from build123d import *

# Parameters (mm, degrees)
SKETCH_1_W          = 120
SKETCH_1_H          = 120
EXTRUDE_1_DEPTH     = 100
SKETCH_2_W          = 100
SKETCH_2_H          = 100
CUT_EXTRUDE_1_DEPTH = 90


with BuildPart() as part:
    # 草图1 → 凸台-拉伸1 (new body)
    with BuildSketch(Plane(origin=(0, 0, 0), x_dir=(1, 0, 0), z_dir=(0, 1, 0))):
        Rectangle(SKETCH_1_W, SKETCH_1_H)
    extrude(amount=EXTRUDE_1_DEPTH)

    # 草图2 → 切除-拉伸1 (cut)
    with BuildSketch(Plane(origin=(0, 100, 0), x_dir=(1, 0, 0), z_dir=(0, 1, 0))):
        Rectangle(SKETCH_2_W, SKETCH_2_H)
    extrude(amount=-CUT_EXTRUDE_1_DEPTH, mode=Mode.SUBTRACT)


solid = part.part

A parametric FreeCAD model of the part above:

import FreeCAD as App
import Part
import Sketcher

V = App.Vector


def add_polygon(sketch, points):
    """Adds a closed chain of lines whose ends are joined by coincident constraints."""
    first, n = sketch.GeometryCount, len(points)
    for a, b in zip(points, points[1:] + points[:1]):
        sketch.addGeometry(Part.LineSegment(App.Vector(*a, 0), App.Vector(*b, 0)), False)
    for i in range(n):
        sketch.addConstraint(Sketcher.Constraint("Coincident", first + i, 2, first + (i + 1) % n, 1))

doc = App.newDocument("Part")
body = doc.addObject("PartDesign::Body", "Body")

# Sketch on XZ plane
sketch1 = doc.addObject("Sketcher::SketchObject", "Sketch")
body.addObject(sketch1)
sketch1.AttachmentSupport = (doc.XZ_Plane, [""])
sketch1.MapMode = "FlatFace"
add_polygon(sketch1, [(-60, -60), (-60, 60), (60, 60), (60, -60)])  # lines 0-3
sketch1.addConstraint([
    Sketcher.Constraint("Vertical", 0),
    Sketcher.Constraint("Horizontal", 1),
    Sketcher.Constraint("Vertical", 2),
    Sketcher.Constraint("Horizontal", 3),
    Sketcher.Constraint("Symmetric", 0, 2, 2, 2, -1, 1),
    Sketcher.Constraint("Equal", 3, 0),
    Sketcher.Constraint("DistanceX", 1, 1, 1, 2, 120.0),
])
pad1 = doc.addObject("PartDesign::Pad", "Pad")
body.addObject(pad1)
pad1.Profile = sketch1
pad1.Length = 100
pad1.Reversed = True

# Sketch on XZ plane
sketch2 = doc.addObject("Sketcher::SketchObject", "Sketch001")
body.addObject(sketch2)
sketch2.AttachmentSupport = (doc.XZ_Plane, [""])
sketch2.MapMode = "FlatFace"
sketch2.AttachmentOffset = App.Placement(V(0, 0, -100), App.Rotation())
add_polygon(sketch2, [(-50, -50), (-50, 50), (50, 50), (50, -50)])  # lines 0-3
sketch2.addConstraint([
    Sketcher.Constraint("Vertical", 0),
    Sketcher.Constraint("Horizontal", 1),
    Sketcher.Constraint("Vertical", 2),
    Sketcher.Constraint("Horizontal", 3),
    Sketcher.Constraint("Symmetric", 0, 2, 2, 2, -1, 1),
    Sketcher.Constraint("Equal", 3, 0),
    Sketcher.Constraint("DistanceX", 1, 1, 1, 2, 100.0),
])
pocket1 = doc.addObject("PartDesign::Pocket", "Pocket")
body.addObject(pocket1)
pocket1.Profile = sketch2
pocket1.Length = 90
pocket1.Reversed = True

doc.recompute()
